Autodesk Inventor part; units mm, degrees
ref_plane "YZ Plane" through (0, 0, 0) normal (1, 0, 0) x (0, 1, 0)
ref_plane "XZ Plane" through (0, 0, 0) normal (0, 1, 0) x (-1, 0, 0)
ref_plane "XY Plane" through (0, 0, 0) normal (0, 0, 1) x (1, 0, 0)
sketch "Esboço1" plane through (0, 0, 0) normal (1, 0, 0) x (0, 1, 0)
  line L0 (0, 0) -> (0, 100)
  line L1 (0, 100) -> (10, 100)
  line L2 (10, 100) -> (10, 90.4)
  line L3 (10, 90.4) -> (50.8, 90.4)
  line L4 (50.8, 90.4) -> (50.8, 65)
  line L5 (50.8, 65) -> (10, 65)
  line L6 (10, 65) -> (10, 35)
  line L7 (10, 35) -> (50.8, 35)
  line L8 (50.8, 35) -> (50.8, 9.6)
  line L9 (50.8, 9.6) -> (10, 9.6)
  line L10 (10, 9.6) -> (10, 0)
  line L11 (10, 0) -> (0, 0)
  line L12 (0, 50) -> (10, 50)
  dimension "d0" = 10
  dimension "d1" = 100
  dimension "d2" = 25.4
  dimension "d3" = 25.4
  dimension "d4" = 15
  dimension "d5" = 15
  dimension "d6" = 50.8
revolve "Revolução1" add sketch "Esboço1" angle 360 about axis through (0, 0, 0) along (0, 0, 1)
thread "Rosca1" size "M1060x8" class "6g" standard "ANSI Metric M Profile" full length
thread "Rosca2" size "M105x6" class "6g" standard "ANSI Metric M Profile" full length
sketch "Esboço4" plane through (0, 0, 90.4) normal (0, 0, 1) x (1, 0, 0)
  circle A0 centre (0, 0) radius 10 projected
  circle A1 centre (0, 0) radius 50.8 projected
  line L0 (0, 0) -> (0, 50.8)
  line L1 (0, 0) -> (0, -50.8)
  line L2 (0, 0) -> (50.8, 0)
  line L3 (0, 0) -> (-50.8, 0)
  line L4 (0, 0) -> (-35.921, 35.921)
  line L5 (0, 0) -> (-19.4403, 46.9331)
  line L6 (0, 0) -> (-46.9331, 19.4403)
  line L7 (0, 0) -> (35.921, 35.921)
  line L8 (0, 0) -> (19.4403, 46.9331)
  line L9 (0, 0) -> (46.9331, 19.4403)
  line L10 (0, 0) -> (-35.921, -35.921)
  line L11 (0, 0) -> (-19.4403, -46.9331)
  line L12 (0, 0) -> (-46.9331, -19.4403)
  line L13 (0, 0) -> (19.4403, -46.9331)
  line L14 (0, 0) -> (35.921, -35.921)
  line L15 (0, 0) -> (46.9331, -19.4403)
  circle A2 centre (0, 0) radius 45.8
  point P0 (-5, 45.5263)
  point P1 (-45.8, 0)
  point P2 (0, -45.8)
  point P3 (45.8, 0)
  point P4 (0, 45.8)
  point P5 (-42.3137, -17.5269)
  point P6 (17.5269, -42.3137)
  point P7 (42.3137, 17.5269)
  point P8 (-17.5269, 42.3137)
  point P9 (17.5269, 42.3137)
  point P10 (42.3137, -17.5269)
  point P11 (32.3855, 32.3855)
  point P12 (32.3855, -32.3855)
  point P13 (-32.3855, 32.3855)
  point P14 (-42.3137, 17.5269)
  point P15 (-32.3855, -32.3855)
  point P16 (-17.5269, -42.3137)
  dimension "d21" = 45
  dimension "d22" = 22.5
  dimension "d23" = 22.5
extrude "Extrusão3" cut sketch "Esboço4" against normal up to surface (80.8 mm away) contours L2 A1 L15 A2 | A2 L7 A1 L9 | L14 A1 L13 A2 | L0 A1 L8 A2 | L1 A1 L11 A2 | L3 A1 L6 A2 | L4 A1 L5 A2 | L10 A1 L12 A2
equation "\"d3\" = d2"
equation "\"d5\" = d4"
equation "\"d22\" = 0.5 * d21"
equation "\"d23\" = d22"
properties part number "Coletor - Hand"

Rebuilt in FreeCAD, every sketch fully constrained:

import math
import FreeCAD as App
import Part
import Sketcher
Q = App.Units.Quantity

doc = App.newDocument("Part")
body = doc.addObject("PartDesign::Body", "Body")

sketch1 = body.newObject("Sketcher::SketchObject", "Sketch")
sketch1.AttachmentSupport = (doc.getObject("YZ_Plane"), [""])
sketch1.MapMode = "FlatFace"
sketch1.addGeometry(Part.LineSegment(App.Vector(0, 0, 0), App.Vector(10, 0, 0)), False)
sketch1.addGeometry(Part.LineSegment(App.Vector(10, 0, 0), App.Vector(10, 10, 0)), False)
sketch1.addGeometry(Part.LineSegment(App.Vector(10, 10, 0), App.Vector(51, 10, 0)), False)
sketch1.addGeometry(Part.LineSegment(App.Vector(51, 10, 0), App.Vector(51, 35, 0)), False)
sketch1.addGeometry(Part.LineSegment(App.Vector(51, 35, 0), App.Vector(10, 35, 0)), False)
sketch1.addGeometry(Part.LineSegment(App.Vector(10, 35, 0), App.Vector(10, 65, 0)), False)
sketch1.addGeometry(Part.LineSegment(App.Vector(10, 65, 0), App.Vector(51, 65, 0)), False)
sketch1.addGeometry(Part.LineSegment(App.Vector(51, 65, 0), App.Vector(51, 90, 0)), False)
sketch1.addGeometry(Part.LineSegment(App.Vector(51, 90, 0), App.Vector(10, 90, 0)), False)
sketch1.addGeometry(Part.LineSegment(App.Vector(10, 90, 0), App.Vector(10, 100, 0)), False)
sketch1.addGeometry(Part.LineSegment(App.Vector(10, 100, 0), App.Vector(0, 100, 0)), False)
sketch1.addGeometry(Part.LineSegment(App.Vector(0, 100, 0), App.Vector(0, 0, 0)), False)
sketch1.addConstraint(Sketcher.Constraint("Coincident", 0, 2, 1, 1))
sketch1.addConstraint(Sketcher.Constraint("Coincident", 1, 2, 2, 1))
sketch1.addConstraint(Sketcher.Constraint("Coincident", 2, 2, 3, 1))
sketch1.addConstraint(Sketcher.Constraint("Coincident", 3, 2, 4, 1))
sketch1.addConstraint(Sketcher.Constraint("Coincident", 4, 2, 5, 1))
sketch1.addConstraint(Sketcher.Constraint("Coincident", 5, 2, 6, 1))
sketch1.addConstraint(Sketcher.Constraint("Coincident", 6, 2, 7, 1))
sketch1.addConstraint(Sketcher.Constraint("Coincident", 7, 2, 8, 1))
sketch1.addConstraint(Sketcher.Constraint("Coincident", 8, 2, 9, 1))
sketch1.addConstraint(Sketcher.Constraint("Coincident", 9, 2, 10, 1))
sketch1.addConstraint(Sketcher.Constraint("Coincident", 10, 2, 11, 1))
sketch1.addConstraint(Sketcher.Constraint("Coincident", 11, 2, 0, 1))
sketch1.addConstraint(Sketcher.Constraint("Horizontal", 0))
sketch1.addConstraint(Sketcher.Constraint("Vertical", 1))
sketch1.addConstraint(Sketcher.Constraint("Horizontal", 2))
sketch1.addConstraint(Sketcher.Constraint("Vertical", 3))
sketch1.addConstraint(Sketcher.Constraint("Horizontal", 4))
sketch1.addConstraint(Sketcher.Constraint("Vertical", 5))
sketch1.addConstraint(Sketcher.Constraint("Horizontal", 6))
sketch1.addConstraint(Sketcher.Constraint("Vertical", 7))
sketch1.addConstraint(Sketcher.Constraint("Horizontal", 8))
sketch1.addConstraint(Sketcher.Constraint("Vertical", 9))
sketch1.addConstraint(Sketcher.Constraint("Horizontal", 10))
sketch1.addConstraint(Sketcher.Constraint("Vertical", 11))
sketch1.addConstraint(Sketcher.Constraint("Coincident", 11, 2, -1, 1))
sketch1.addConstraint(Sketcher.Constraint("Vertical", 1, 2, 4, 2))
sketch1.addConstraint(Sketcher.Constraint("Vertical", 3, 2, 6, 2))
sketch1.addConstraint(Sketcher.Constraint("Vertical", 5, 2, 8, 2))
sketch1.addConstraint(Sketcher.Constraint("Equal", 3, 7))
sketch1.addConstraint(Sketcher.Constraint("Equal", 1, 9))
sketch1.addConstraint(Sketcher.Constraint("DistanceX", 0, 1, 0, 2, 10.0))
sketch1.addConstraint(Sketcher.Constraint("DistanceY", 11, 2, 11, 1, 100.0))
sketch1.addConstraint(Sketcher.Constraint("DistanceY", 3, 1, 3, 2, 25.4))
sketch1.addConstraint(Sketcher.Constraint("DistanceX", -1, 1, 2, 2, 50.8))
sketch1.addConstraint(Sketcher.Constraint("DistanceY", 5, 1, 5, 2, 30.0))
revolution = body.newObject("PartDesign::Revolution", "Revolution")
revolution.Profile = sketch1
revolution.ReferenceAxis = (sketch1, ["V_Axis"])
revolution.Angle = 360

sketch2 = body.newObject("Sketcher::SketchObject", "Sketch001")
sketch2.AttachmentSupport = (doc.getObject("XY_Plane"), [""])
sketch2.MapMode = "FlatFace"
sketch2.AttachmentOffset = App.Placement(App.Vector(0, 0, 90.4), App.Rotation())
sketch2.addGeometry(Part.LineSegment(App.Vector(50.8, 0, 0), App.Vector(45.8, 0, 0)), False)
sketch2.addGeometry(Part.ArcOfCircle(Part.Circle(App.Vector(0, 0, 0), App.Vector(0, 0, 1), 45.8), math.radians(-22), math.radians(0)), False)
sketch2.addGeometry(Part.LineSegment(App.Vector(42.3, -17.5, 0), App.Vector(46.9, -19.4, 0)), False)
sketch2.addGeometry(Part.ArcOfCircle(Part.Circle(App.Vector(0, 0, 0), App.Vector(0, 0, 1), 50.8), math.radians(-22), math.radians(0)), False)
sketch2.addGeometry(Part.ArcOfCircle(Part.Circle(App.Vector(0, 0, 0), App.Vector(0, 0, 1), 45.8), math.radians(22), math.radians(45)), False)
sketch2.addGeometry(Part.LineSegment(App.Vector(42.3, 17.5, 0), App.Vector(46.9, 19.4, 0)), False)
sketch2.addGeometry(Part.ArcOfCircle(Part.Circle(App.Vector(0, 0, 0), App.Vector(0, 0, 1), 50.8), math.radians(22), math.radians(45)), False)
sketch2.addGeometry(Part.LineSegment(App.Vector(35.9, 35.9, 0), App.Vector(32.4, 32.4, 0)), False)
sketch2.addGeometry(Part.LineSegment(App.Vector(35.9, -35.9, 0), App.Vector(32.4, -32.4, 0)), False)
sketch2.addGeometry(Part.ArcOfCircle(Part.Circle(App.Vector(0, 0, 0), App.Vector(0, 0, 1), 45.8), math.radians(-68), math.radians(-45)), False)
sketch2.addGeometry(Part.LineSegment(App.Vector(17.5, -42.3, 0), App.Vector(19.4, -46.9, 0)), False)
sketch2.addGeometry(Part.ArcOfCircle(Part.Circle(App.Vector(0, 0, 0), App.Vector(0, 0, 1), 50.8), math.radians(-68), math.radians(-45)), False)
sketch2.addGeometry(Part.LineSegment(App.Vector(0, 50.8, 0), App.Vector(0, 45.8, 0)), False)
sketch2.addGeometry(Part.ArcOfCircle(Part.Circle(App.Vector(0, 0, 0), App.Vector(0, 0, 1), 45.8), math.radians(68), math.radians(90)), False)
sketch2.addGeometry(Part.LineSegment(App.Vector(17.5, 42.3, 0), App.Vector(19.4, 46.9, 0)), False)
sketch2.addGeometry(Part.ArcOfCircle(Part.Circle(App.Vector(0, 0, 0), App.Vector(0, 0, 1), 50.8), math.radians(68), math.radians(90)), False)
sketch2.addGeometry(Part.LineSegment(App.Vector(0, -50.8, 0), App.Vector(0, -45.8, 0)), False)
sketch2.addGeometry(Part.ArcOfCircle(Part.Circle(App.Vector(0, 0, 0), App.Vector(0, 0, 1), 45.8), math.radians(-112), math.radians(-90)), False)
sketch2.addGeometry(Part.LineSegment(App.Vector(-17.5, -42.3, 0), App.Vector(-19.4, -46.9, 0)), False)
sketch2.addGeometry(Part.ArcOfCircle(Part.Circle(App.Vector(0, 0, 0), App.Vector(0, 0, 1), 50.8), math.radians(-112), math.radians(-90)), False)
sketch2.addGeometry(Part.LineSegment(App.Vector(-50.8, 0, 0), App.Vector(-45.8, 0, 0)), False)
sketch2.addGeometry(Part.ArcOfCircle(Part.Circle(App.Vector(0, 0, 0), App.Vector(0, 0, 1), 45.8), math.radians(158), math.radians(180)), False)
sketch2.addGeometry(Part.LineSegment(App.Vector(-42.3, 17.5, 0), App.Vector(-46.9, 19.4, 0)), False)
sketch2.addGeometry(Part.ArcOfCircle(Part.Circle(App.Vector(0, 0, 0), App.Vector(0, 0, 1), 50.8), math.radians(158), math.radians(180)), False)
sketch2.addGeometry(Part.LineSegment(App.Vector(-35.9, 35.9, 0), App.Vector(-32.4, 32.4, 0)), False)
sketch2.addGeometry(Part.ArcOfCircle(Part.Circle(App.Vector(0, 0, 0), App.Vector(0, 0, 1), 45.8), math.radians(112), math.radians(135)), False)
sketch2.addGeometry(Part.LineSegment(App.Vector(-17.5, 42.3, 0), App.Vector(-19.4, 46.9, 0)), False)
sketch2.addGeometry(Part.ArcOfCircle(Part.Circle(App.Vector(0, 0, 0), App.Vector(0, 0, 1), 50.8), math.radians(112), math.radians(135)), False)
sketch2.addGeometry(Part.LineSegment(App.Vector(-35.9, -35.9, 0), App.Vector(-32.4, -32.4, 0)), False)
sketch2.addGeometry(Part.ArcOfCircle(Part.Circle(App.Vector(0, 0, 0), App.Vector(0, 0, 1), 45.8), math.radians(-158), math.radians(-135)), False)
sketch2.addGeometry(Part.LineSegment(App.Vector(-42.3, -17.5, 0), App.Vector(-46.9, -19.4, 0)), False)
sketch2.addGeometry(Part.ArcOfCircle(Part.Circle(App.Vector(0, 0, 0), App.Vector(0, 0, 1), 50.8), math.radians(-158), math.radians(-135)), False)
sketch2.addConstraint(Sketcher.Constraint("Coincident", 0, 2, 1, 2))
sketch2.addConstraint(Sketcher.Constraint("Coincident", 1, 1, 2, 1))
sketch2.addConstraint(Sketcher.Constraint("Coincident", 2, 2, 3, 1))
sketch2.addConstraint(Sketcher.Constraint("Coincident", 3, 2, 0, 1))
sketch2.addConstraint(Sketcher.Constraint("Coincident", 4, 1, 5, 1))
sketch2.addConstraint(Sketcher.Constraint("Coincident", 5, 2, 6, 1))
sketch2.addConstraint(Sketcher.Constraint("Coincident", 6, 2, 7, 1))
sketch2.addConstraint(Sketcher.Constraint("Coincident", 7, 2, 4, 2))
sketch2.addConstraint(Sketcher.Constraint("Coincident", 8, 2, 9, 2))
sketch2.addConstraint(Sketcher.Constraint("Coincident", 9, 1, 10, 1))
sketch2.addConstraint(Sketcher.Constraint("Coincident", 10, 2, 11, 1))
sketch2.addConstraint(Sketcher.Constraint("Coincident", 11, 2, 8, 1))
sketch2.addConstraint(Sketcher.Constraint("Coincident", 12, 2, 13, 2))
sketch2.addConstraint(Sketcher.Constraint("Coincident", 13, 1, 14, 1))
sketch2.addConstraint(Sketcher.Constraint("Coincident", 14, 2, 15, 1))
sketch2.addConstraint(Sketcher.Constraint("Coincident", 15, 2, 12, 1))
sketch2.addConstraint(Sketcher.Constraint("Coincident", 16, 2, 17, 2))
sketch2.addConstraint(Sketcher.Constraint("Coincident", 17, 1, 18, 1))
sketch2.addConstraint(Sketcher.Constraint("Coincident", 18, 2, 19, 1))
sketch2.addConstraint(Sketcher.Constraint("Coincident", 19, 2, 16, 1))
sketch2.addConstraint(Sketcher.Constraint("Coincident", 20, 2, 21, 2))
sketch2.addConstraint(Sketcher.Constraint("Coincident", 21, 1, 22, 1))
sketch2.addConstraint(Sketcher.Constraint("Coincident", 22, 2, 23, 1))
sketch2.addConstraint(Sketcher.Constraint("Coincident", 23, 2, 20, 1))
sketch2.addConstraint(Sketcher.Constraint("Coincident", 24, 2, 25, 2))
sketch2.addConstraint(Sketcher.Constraint("Coincident", 25, 1, 26, 1))
sketch2.addConstraint(Sketcher.Constraint("Coincident", 26, 2, 27, 1))
sketch2.addConstraint(Sketcher.Constraint("Coincident", 27, 2, 24, 1))
sketch2.addConstraint(Sketcher.Constraint("Coincident", 28, 2, 29, 2))
sketch2.addConstraint(Sketcher.Constraint("Coincident", 29, 1, 30, 1))
sketch2.addConstraint(Sketcher.Constraint("Coincident", 30, 2, 31, 1))
sketch2.addConstraint(Sketcher.Constraint("Coincident", 31, 2, 28, 1))
sketch2.addConstraint(Sketcher.Constraint("Horizontal", 0))
sketch2.addConstraint(Sketcher.Constraint("Vertical", 12))
sketch2.addConstraint(Sketcher.Constraint("Vertical", 16))
sketch2.addConstraint(Sketcher.Constraint("Horizontal", 20))
sketch2.addConstraint(Sketcher.Constraint("Coincident", 1, 3, -1, 1))
sketch2.addConstraint(Sketcher.Constraint("Coincident", 3, 3, -1, 1))
sketch2.addConstraint(Sketcher.Constraint("Coincident", 4, 3, -1, 1))
sketch2.addConstraint(Sketcher.Constraint("Coincident", 6, 3, -1, 1))
sketch2.addConstraint(Sketcher.Constraint("Coincident", 9, 3, -1, 1))
sketch2.addConstraint(Sketcher.Constraint("Coincident", 11, 3, -1, 1))
sketch2.addConstraint(Sketcher.Constraint("Coincident", 13, 3, -1, 1))
sketch2.addConstraint(Sketcher.Constraint("Coincident", 15, 3, -1, 1))
sketch2.addConstraint(Sketcher.Constraint("Coincident", 17, 3, -1, 1))
sketch2.addConstraint(Sketcher.Constraint("Coincident", 19, 3, -1, 1))
sketch2.addConstraint(Sketcher.Constraint("Coincident", 21, 3, -1, 1))
sketch2.addConstraint(Sketcher.Constraint("Coincident", 23, 3, -1, 1))
sketch2.addConstraint(Sketcher.Constraint("Coincident", 25, 3, -1, 1))
sketch2.addConstraint(Sketcher.Constraint("Coincident", 27, 3, -1, 1))
sketch2.addConstraint(Sketcher.Constraint("Coincident", 29, 3, -1, 1))
sketch2.addConstraint(Sketcher.Constraint("Coincident", 31, 3, -1, 1))
sketch2.addConstraint(Sketcher.Constraint("Equal", 1, 4))
sketch2.addConstraint(Sketcher.Constraint("Equal", 3, 6))
sketch2.addConstraint(Sketcher.Constraint("Equal", 4, 9))
sketch2.addConstraint(Sketcher.Constraint("Equal", 6, 11))
sketch2.addConstraint(Sketcher.Constraint("Equal", 9, 13))
sketch2.addConstraint(Sketcher.Constraint("Equal", 11, 15))
sketch2.addConstraint(Sketcher.Constraint("Equal", 13, 17))
sketch2.addConstraint(Sketcher.Constraint("Equal", 15, 19))
sketch2.addConstraint(Sketcher.Constraint("Equal", 17, 21))
sketch2.addConstraint(Sketcher.Constraint("Equal", 19, 23))
sketch2.addConstraint(Sketcher.Constraint("Equal", 21, 25))
sketch2.addConstraint(Sketcher.Constraint("Equal", 23, 27))
sketch2.addConstraint(Sketcher.Constraint("Equal", 25, 29))
sketch2.addConstraint(Sketcher.Constraint("Equal", 27, 31))
sketch2.addConstraint(Sketcher.Constraint("PointOnObject", 0, 2, -1))
sketch2.addConstraint(Sketcher.Constraint("PointOnObject", 12, 2, -2))
sketch2.addConstraint(Sketcher.Constraint("PointOnObject", 16, 2, -2))
sketch2.addConstraint(Sketcher.Constraint("PointOnObject", 20, 2, -1))
sketch2.addConstraint(Sketcher.Constraint("Perpendicular", 7, 8))
sketch2.addConstraint(Sketcher.Constraint("Perpendicular", 5, 10))
sketch2.addConstraint(Sketcher.Constraint("Perpendicular", 2, 14))
sketch2.addConstraint(Sketcher.Constraint("Parallel", 14, 18))
sketch2.addConstraint(Sketcher.Constraint("Perpendicular", 18, 22))
sketch2.addConstraint(Sketcher.Constraint("Parallel", 8, 24))
sketch2.addConstraint(Sketcher.Constraint("Parallel", 10, 26))
sketch2.addConstraint(Sketcher.Constraint("Perpendicular", 24, 28))
sketch2.addConstraint(Sketcher.Constraint("Perpendicular", 26, 30))
sketch2.addConstraint(Sketcher.Constraint("Horizontal", 9, 1, 17, 1))
sketch2.addConstraint(Sketcher.Constraint("Horizontal", 10, 2, 18, 2))
sketch2.addConstraint(Sketcher.Constraint("Horizontal", 4, 1, 21, 1))
sketch2.addConstraint(Sketcher.Constraint("Horizontal", 7, 2, 24, 2))
sketch2.addConstraint(Sketcher.Constraint("Horizontal", 13, 1, 25, 1))
sketch2.addConstraint(Sketcher.Constraint("Horizontal", 6, 2, 27, 2))
sketch2.addConstraint(Sketcher.Constraint("Horizontal", 8, 2, 28, 2))
sketch2.addConstraint(Sketcher.Constraint("Horizontal", 1, 1, 29, 1))
sketch2.addConstraint(Sketcher.Constraint("Vertical", 1, 1, 4, 1))
sketch2.addConstraint(Sketcher.Constraint("Vertical", 7, 2, 8, 2))
sketch2.addConstraint(Sketcher.Constraint("Vertical", 9, 1, 13, 1))
sketch2.addConstraint(Sketcher.Constraint("Angle", 2, Q("-22.5 deg")))
sketch2.addConstraint(Sketcher.Constraint("Radius", 1, 45.8))
sketch2.addConstraint(Sketcher.Constraint("Radius", 3, 50.8))
sketch2.addConstraint(Sketcher.Constraint("DistanceY", 1, 1, -1, 1, 17.527))
sketch2.addConstraint(Sketcher.Constraint("DistanceX", -1, 1, 6, 2, 35.921))
sketch2.addConstraint(Sketcher.Constraint("DistanceX", -1, 1, 9, 1, 17.527))
pocket1 = body.newObject("PartDesign::Pocket", "Pocket")
pocket1.Profile = sketch2
pocket1.Length = 80.8

doc.recompute()
